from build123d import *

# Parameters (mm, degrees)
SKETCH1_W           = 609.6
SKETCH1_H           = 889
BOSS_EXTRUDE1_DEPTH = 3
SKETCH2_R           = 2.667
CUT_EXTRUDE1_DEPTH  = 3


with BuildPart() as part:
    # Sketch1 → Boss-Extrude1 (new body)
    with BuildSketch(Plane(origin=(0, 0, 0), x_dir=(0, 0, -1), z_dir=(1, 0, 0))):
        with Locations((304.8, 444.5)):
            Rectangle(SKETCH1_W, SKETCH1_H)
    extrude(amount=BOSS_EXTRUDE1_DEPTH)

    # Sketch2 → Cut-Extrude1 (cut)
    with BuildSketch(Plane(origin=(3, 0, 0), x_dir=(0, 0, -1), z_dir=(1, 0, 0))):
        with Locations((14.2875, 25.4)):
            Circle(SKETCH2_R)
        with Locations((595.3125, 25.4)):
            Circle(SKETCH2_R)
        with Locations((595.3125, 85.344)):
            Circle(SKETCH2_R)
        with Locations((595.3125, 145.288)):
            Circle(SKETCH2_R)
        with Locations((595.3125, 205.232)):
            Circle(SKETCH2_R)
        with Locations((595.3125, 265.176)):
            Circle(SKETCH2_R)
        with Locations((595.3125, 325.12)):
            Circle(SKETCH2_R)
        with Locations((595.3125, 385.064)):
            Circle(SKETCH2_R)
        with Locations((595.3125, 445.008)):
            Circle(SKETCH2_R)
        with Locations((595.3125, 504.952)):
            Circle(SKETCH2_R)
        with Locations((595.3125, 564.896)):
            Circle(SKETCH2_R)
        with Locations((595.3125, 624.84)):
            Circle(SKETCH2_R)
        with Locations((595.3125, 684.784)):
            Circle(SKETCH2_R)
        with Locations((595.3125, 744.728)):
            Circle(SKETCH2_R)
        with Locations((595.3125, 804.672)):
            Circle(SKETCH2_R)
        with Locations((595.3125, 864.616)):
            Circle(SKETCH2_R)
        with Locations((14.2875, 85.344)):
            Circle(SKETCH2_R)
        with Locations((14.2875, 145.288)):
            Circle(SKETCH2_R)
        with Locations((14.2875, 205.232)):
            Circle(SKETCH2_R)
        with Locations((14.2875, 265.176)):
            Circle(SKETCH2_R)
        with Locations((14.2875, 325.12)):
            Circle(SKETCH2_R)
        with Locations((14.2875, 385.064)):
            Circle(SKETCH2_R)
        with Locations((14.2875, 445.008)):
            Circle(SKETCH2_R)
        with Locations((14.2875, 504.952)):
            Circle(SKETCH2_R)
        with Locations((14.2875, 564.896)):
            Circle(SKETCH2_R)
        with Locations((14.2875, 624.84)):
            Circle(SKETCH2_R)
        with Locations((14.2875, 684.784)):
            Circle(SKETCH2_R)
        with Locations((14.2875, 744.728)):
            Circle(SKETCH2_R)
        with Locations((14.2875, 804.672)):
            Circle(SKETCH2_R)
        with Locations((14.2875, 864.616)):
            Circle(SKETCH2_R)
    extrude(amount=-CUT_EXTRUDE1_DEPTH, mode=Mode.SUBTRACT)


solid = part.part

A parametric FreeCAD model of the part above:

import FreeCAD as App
import Part
import Sketcher
from FreeCAD import Vector
Q = App.Units.Quantity

doc = App.newDocument("Part")
body = doc.addObject("PartDesign::Body", "Body")

# Sketch on YZ plane
sketch1 = body.newObject("Sketcher::SketchObject", "Sketch")
sketch1.AttachmentSupport = (doc.getObject("YZ_Plane"), [""])
sketch1.MapMode = "FlatFace"
sketch1.addGeometry([
    Part.LineSegment(Vector(889, 0, 0), Vector(0, 0, 0)),
    Part.LineSegment(Vector(0, 0, 0), Vector(0, -609.6, 0)),
    Part.LineSegment(Vector(0, -609.6, 0), Vector(889, -609.6, 0)),
    Part.LineSegment(Vector(889, -609.6, 0), Vector(889, 0, 0)),
], False)
sketch1.addConstraint([
    Sketcher.Constraint("Coincident", 0, 2, 1, 1),
    Sketcher.Constraint("Coincident", 1, 2, 2, 1),
    Sketcher.Constraint("Coincident", 2, 2, 3, 1),
    Sketcher.Constraint("Coincident", 3, 2, 0, 1),
    Sketcher.Constraint("Horizontal", 0),
    Sketcher.Constraint("Vertical", 1),
    Sketcher.Constraint("Horizontal", 2),
    Sketcher.Constraint("Vertical", 3),
    Sketcher.Constraint("Coincident", 0, 2, -1, 1),
    Sketcher.Constraint("DistanceX", 0, 2, 0, 1, Q("35 in")),
    Sketcher.Constraint("DistanceY", 1, 2, 1, 1, Q("24 in")),
])
pad1 = body.newObject("PartDesign::Pad", "Pad")
pad1.Profile = sketch1
pad1.Length = 3

# Sketch on YZ plane
sketch2 = body.newObject("Sketcher::SketchObject", "Sketch001")
sketch2.AttachmentSupport = (doc.getObject("YZ_Plane"), [""])
sketch2.MapMode = "FlatFace"
sketch2.AttachmentOffset = App.Placement(Vector(0, 0, 3), App.Rotation())
sketch2.addGeometry([
    Part.Circle(Vector(25.4, -14.2875, 0), Vector(0, 0, 1), 2.667),  # 0
    Part.Circle(Vector(25.4, -595.3125, 0), Vector(0, 0, 1), 2.667),  # 1
    Part.Circle(Vector(85.344, -595.3125, 0), Vector(0, 0, 1), 2.667),  # 2
    Part.Circle(Vector(145.288, -595.3125, 0), Vector(0, 0, 1), 2.667),  # 3
    Part.Circle(Vector(205.232, -595.3125, 0), Vector(0, 0, 1), 2.667),  # 4
    Part.Circle(Vector(265.176, -595.3125, 0), Vector(0, 0, 1), 2.667),  # 5
    Part.Circle(Vector(325.12, -595.3125, 0), Vector(0, 0, 1), 2.667),  # 6
    Part.Circle(Vector(385.064, -595.3125, 0), Vector(0, 0, 1), 2.667),  # 7
    Part.Circle(Vector(445.008, -595.3125, 0), Vector(0, 0, 1), 2.667),  # 8
    Part.Circle(Vector(504.952, -595.3125, 0), Vector(0, 0, 1), 2.667),  # 9
    Part.Circle(Vector(564.896, -595.3125, 0), Vector(0, 0, 1), 2.667),  # 10
    Part.Circle(Vector(624.84, -595.3125, 0), Vector(0, 0, 1), 2.667),  # 11
    Part.Circle(Vector(684.784, -595.3125, 0), Vector(0, 0, 1), 2.667),  # 12
    Part.Circle(Vector(744.728, -595.3125, 0), Vector(0, 0, 1), 2.667),  # 13
    Part.Circle(Vector(804.672, -595.3125, 0), Vector(0, 0, 1), 2.667),  # 14
    Part.Circle(Vector(864.616, -595.3125, 0), Vector(0, 0, 1), 2.667),  # 15
    Part.Circle(Vector(85.344, -14.2875, 0), Vector(0, 0, 1), 2.667),  # 16
    Part.Circle(Vector(145.288, -14.2875, 0), Vector(0, 0, 1), 2.667),  # 17
    Part.Circle(Vector(205.232, -14.2875, 0), Vector(0, 0, 1), 2.667),  # 18
    Part.Circle(Vector(265.176, -14.2875, 0), Vector(0, 0, 1), 2.667),  # 19
    Part.Circle(Vector(325.12, -14.2875, 0), Vector(0, 0, 1), 2.667),  # 20
    Part.Circle(Vector(385.064, -14.2875, 0), Vector(0, 0, 1), 2.667),  # 21
    Part.Circle(Vector(445.008, -14.2875, 0), Vector(0, 0, 1), 2.667),  # 22
    Part.Circle(Vector(504.952, -14.2875, 0), Vector(0, 0, 1), 2.667),  # 23
    Part.Circle(Vector(564.896, -14.2875, 0), Vector(0, 0, 1), 2.667),  # 24
    Part.Circle(Vector(624.84, -14.2875, 0), Vector(0, 0, 1), 2.667),  # 25
    Part.Circle(Vector(684.784, -14.2875, 0), Vector(0, 0, 1), 2.667),  # 26
    Part.Circle(Vector(744.728, -14.2875, 0), Vector(0, 0, 1), 2.667),  # 27
    Part.Circle(Vector(804.672, -14.2875, 0), Vector(0, 0, 1), 2.667),  # 28
    Part.Circle(Vector(864.616, -14.2875, 0), Vector(0, 0, 1), 2.667),  # 29
], False)
sketch2.addConstraint([
    Sketcher.Constraint("Equal", 0, 1),
    Sketcher.Constraint("Equal", 1, 2),
    Sketcher.Constraint("Equal", 2, 3),
    Sketcher.Constraint("Equal", 3, 4),
    Sketcher.Constraint("Equal", 4, 5),
    Sketcher.Constraint("Equal", 5, 6),
    Sketcher.Constraint("Equal", 6, 7),
    Sketcher.Constraint("Equal", 7, 8),
    Sketcher.Constraint("Equal", 8, 9),
    Sketcher.Constraint("Equal", 9, 10),
    Sketcher.Constraint("Equal", 10, 11),
    Sketcher.Constraint("Equal", 11, 12),
    Sketcher.Constraint("Equal", 12, 13),
    Sketcher.Constraint("Equal", 13, 14),
    Sketcher.Constraint("Equal", 14, 15),
    Sketcher.Constraint("Equal", 15, 16),
    Sketcher.Constraint("Equal", 16, 17),
    Sketcher.Constraint("Equal", 17, 18),
    Sketcher.Constraint("Equal", 18, 19),
    Sketcher.Constraint("Equal", 19, 20),
    Sketcher.Constraint("Equal", 20, 21),
    Sketcher.Constraint("Equal", 21, 22),
    Sketcher.Constraint("Equal", 22, 23),
    Sketcher.Constraint("Equal", 23, 24),
    Sketcher.Constraint("Equal", 24, 25),
    Sketcher.Constraint("Equal", 25, 26),
    Sketcher.Constraint("Equal", 26, 27),
    Sketcher.Constraint("Equal", 27, 28),
    Sketcher.Constraint("Equal", 28, 29),
    Sketcher.Constraint("Horizontal", 1, 3, 2, 3),
    Sketcher.Constraint("Horizontal", 2, 3, 3, 3),
    Sketcher.Constraint("Horizontal", 3, 3, 4, 3),
    Sketcher.Constraint("Horizontal", 4, 3, 5, 3),
    Sketcher.Constraint("Horizontal", 5, 3, 6, 3),
    Sketcher.Constraint("Horizontal", 6, 3, 7, 3),
    Sketcher.Constraint("Horizontal", 7, 3, 8, 3),
    Sketcher.Constraint("Horizontal", 8, 3, 9, 3),
    Sketcher.Constraint("Horizontal", 9, 3, 10, 3),
    Sketcher.Constraint("Horizontal", 10, 3, 11, 3),
    Sketcher.Constraint("Horizontal", 11, 3, 12, 3),
    Sketcher.Constraint("Horizontal", 12, 3, 13, 3),
    Sketcher.Constraint("Horizontal", 13, 3, 14, 3),
    Sketcher.Constraint("Horizontal", 14, 3, 15, 3),
    Sketcher.Constraint("Horizontal", 0, 3, 16, 3),
    Sketcher.Constraint("Horizontal", 16, 3, 17, 3),
    Sketcher.Constraint("Horizontal", 17, 3, 18, 3),
    Sketcher.Constraint("Horizontal", 18, 3, 19, 3),
    Sketcher.Constraint("Horizontal", 19, 3, 20, 3),
    Sketcher.Constraint("Horizontal", 20, 3, 21, 3),
    Sketcher.Constraint("Horizontal", 21, 3, 22, 3),
    Sketcher.Constraint("Horizontal", 22, 3, 23, 3),
    Sketcher.Constraint("Horizontal", 23, 3, 24, 3),
    Sketcher.Constraint("Horizontal", 24, 3, 25, 3),
    Sketcher.Constraint("Horizontal", 25, 3, 26, 3),
    Sketcher.Constraint("Horizontal", 26, 3, 27, 3),
    Sketcher.Constraint("Horizontal", 27, 3, 28, 3),
    Sketcher.Constraint("Horizontal", 28, 3, 29, 3),
    Sketcher.Constraint("Vertical", 0, 3, 1, 3),
    Sketcher.Constraint("Vertical", 2, 3, 16, 3),
    Sketcher.Constraint("Vertical", 3, 3, 17, 3),
    Sketcher.Constraint("Vertical", 4, 3, 18, 3),
    Sketcher.Constraint("Vertical", 5, 3, 19, 3),
    Sketcher.Constraint("Vertical", 6, 3, 20, 3),
    Sketcher.Constraint("Vertical", 7, 3, 21, 3),
    Sketcher.Constraint("Vertical", 8, 3, 22, 3),
    Sketcher.Constraint("Vertical", 9, 3, 23, 3),
    Sketcher.Constraint("Vertical", 10, 3, 24, 3),
    Sketcher.Constraint("Vertical", 11, 3, 25, 3),
    Sketcher.Constraint("Vertical", 12, 3, 26, 3),
    Sketcher.Constraint("Vertical", 13, 3, 27, 3),
    Sketcher.Constraint("Vertical", 14, 3, 28, 3),
    Sketcher.Constraint("Vertical", 15, 3, 29, 3),
    Sketcher.Constraint("Diameter", 0, Q("0.21 in")),
    Sketcher.Constraint("DistanceX", -1, 1, 0, 3, Q("1 in")),
    Sketcher.Constraint("DistanceX", -1, 1, 6, 3, Q("12.8 in")),
    Sketcher.Constraint("DistanceX", -1, 1, 11, 3, Q("24.6 in")),
    Sketcher.Constraint("DistanceX", 2, 3, 7, 3, Q("11.8 in")),
    Sketcher.Constraint("DistanceX", 3, 3, 8, 3, Q("11.8 in")),
    Sketcher.Constraint("DistanceX", 4, 3, 9, 3, Q("11.8 in")),
    Sketcher.Constraint("DistanceX", 5, 3, 10, 3, Q("11.8 in")),
    Sketcher.Constraint("DistanceX", 7, 3, 12, 3, Q("11.8 in")),
    Sketcher.Constraint("DistanceX", 8, 3, 13, 3, Q("11.8 in")),
    Sketcher.Constraint("DistanceX", 9, 3, 14, 3, Q("11.8 in")),
    Sketcher.Constraint("DistanceX", 10, 3, 15, 3, Q("11.8 in")),
    Sketcher.Constraint("DistanceX", -1, 1, 2, 3, Q("3.36 in")),
    Sketcher.Constraint("DistanceX", -1, 1, 3, 3, Q("5.72 in")),
    Sketcher.Constraint("DistanceX", -1, 1, 4, 3, Q("8.08 in")),
    Sketcher.Constraint("DistanceX", -1, 1, 5, 3, Q("10.44 in")),
    Sketcher.Constraint("DistanceY", 0, 3, -1, 1, Q("0.5625 in")),
    Sketcher.Constraint("DistanceY", 1, 3, -1, 1, Q("23.4375 in")),
])
pocket1 = body.newObject("PartDesign::Pocket", "Pocket")
pocket1.Profile = sketch2
pocket1.Length = 3

doc.recompute()
